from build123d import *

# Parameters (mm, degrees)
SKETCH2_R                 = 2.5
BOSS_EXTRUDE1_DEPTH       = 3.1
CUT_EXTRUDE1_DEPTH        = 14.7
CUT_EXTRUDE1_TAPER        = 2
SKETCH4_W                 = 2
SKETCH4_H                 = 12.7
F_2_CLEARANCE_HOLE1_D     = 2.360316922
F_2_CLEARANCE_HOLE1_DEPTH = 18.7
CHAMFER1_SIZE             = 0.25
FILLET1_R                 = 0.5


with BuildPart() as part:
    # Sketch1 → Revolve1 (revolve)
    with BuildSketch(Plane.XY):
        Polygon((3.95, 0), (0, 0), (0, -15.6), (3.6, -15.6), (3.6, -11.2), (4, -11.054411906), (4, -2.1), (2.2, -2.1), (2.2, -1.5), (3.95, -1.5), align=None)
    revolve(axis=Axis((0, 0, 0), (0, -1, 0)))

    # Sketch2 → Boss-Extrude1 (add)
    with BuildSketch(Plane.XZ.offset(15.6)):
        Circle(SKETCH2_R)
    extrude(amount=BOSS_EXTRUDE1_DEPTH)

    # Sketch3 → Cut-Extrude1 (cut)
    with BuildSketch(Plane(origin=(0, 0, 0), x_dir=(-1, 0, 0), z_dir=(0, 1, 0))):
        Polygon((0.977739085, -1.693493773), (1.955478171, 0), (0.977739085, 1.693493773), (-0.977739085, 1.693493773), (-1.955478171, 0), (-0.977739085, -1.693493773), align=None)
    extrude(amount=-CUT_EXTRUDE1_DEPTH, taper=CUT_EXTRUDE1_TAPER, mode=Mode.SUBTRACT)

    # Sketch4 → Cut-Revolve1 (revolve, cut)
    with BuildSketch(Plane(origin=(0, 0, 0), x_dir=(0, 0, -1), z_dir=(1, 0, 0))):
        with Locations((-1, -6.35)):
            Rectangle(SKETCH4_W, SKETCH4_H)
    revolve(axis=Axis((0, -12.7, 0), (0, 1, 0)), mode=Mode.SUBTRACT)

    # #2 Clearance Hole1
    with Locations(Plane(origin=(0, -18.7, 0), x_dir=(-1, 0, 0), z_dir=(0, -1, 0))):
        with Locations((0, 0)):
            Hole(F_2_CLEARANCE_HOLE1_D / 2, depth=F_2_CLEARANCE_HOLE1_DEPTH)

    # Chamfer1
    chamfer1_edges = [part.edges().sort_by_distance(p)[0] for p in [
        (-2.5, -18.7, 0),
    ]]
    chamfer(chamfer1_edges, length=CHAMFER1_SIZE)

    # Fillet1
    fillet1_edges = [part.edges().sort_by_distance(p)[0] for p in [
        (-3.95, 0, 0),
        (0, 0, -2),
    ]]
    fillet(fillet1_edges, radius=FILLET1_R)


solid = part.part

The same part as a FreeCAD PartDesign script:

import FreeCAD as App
import Part
import Sketcher

V = App.Vector
Q = App.Units.Quantity


def edges_at(feature, points):
    """Names of the edges that pass closest to the given points."""
    edges = feature.Shape.Edges
    near = lambda p: min(range(len(edges)), key=lambda i: edges[i].distToShape(Part.Vertex(*p))[0])
    return sorted({f"Edge{near(p) + 1}" for p in points})

doc = App.newDocument("Part")
body = doc.addObject("PartDesign::Body", "Body")

# Sketch on XY plane
sketch1 = body.newObject("Sketcher::SketchObject", "Sketch")
sketch1.AttachmentSupport = (doc.getObject("XY_Plane"), [""])
sketch1.MapMode = "FlatFace"
sketch1.addGeometry([
    Part.LineSegment(V(3.95, 0, 0), V(0, 0, 0)),  # 0
    Part.LineSegment(V(0, 0, 0), V(0, -15.6, 0)),  # 1
    Part.LineSegment(V(0, -15.6, 0), V(3.6, -15.6, 0)),  # 2
    Part.LineSegment(V(3.6, -15.6, 0), V(3.6, -11.2, 0)),  # 3
    Part.LineSegment(V(3.6, -11.2, 0), V(4, -11.05, 0)),  # 4
    Part.LineSegment(V(4, -11.05, 0), V(4, -2.1, 0)),  # 5
    Part.LineSegment(V(4, -2.1, 0), V(2.2, -2.1, 0)),  # 6
    Part.LineSegment(V(2.2, -2.1, 0), V(2.2, -1.5, 0)),  # 7
    Part.LineSegment(V(2.2, -1.5, 0), V(3.95, -1.5, 0)),  # 8
    Part.LineSegment(V(3.95, -1.5, 0), V(3.95, 0, 0)),  # 9
], False)
sketch1.addConstraint([
    Sketcher.Constraint("Coincident", 0, 2, 1, 1),
    Sketcher.Constraint("Coincident", 1, 2, 2, 1),
    Sketcher.Constraint("Coincident", 2, 2, 3, 1),
    Sketcher.Constraint("Coincident", 3, 2, 4, 1),
    Sketcher.Constraint("Coincident", 4, 2, 5, 1),
    Sketcher.Constraint("Coincident", 5, 2, 6, 1),
    Sketcher.Constraint("Coincident", 6, 2, 7, 1),
    Sketcher.Constraint("Coincident", 7, 2, 8, 1),
    Sketcher.Constraint("Coincident", 8, 2, 9, 1),
    Sketcher.Constraint("Coincident", 9, 2, 0, 1),
    Sketcher.Constraint("Horizontal", 0),
    Sketcher.Constraint("Vertical", 1),
    Sketcher.Constraint("Horizontal", 2),
    Sketcher.Constraint("Vertical", 3),
    Sketcher.Constraint("Vertical", 5),
    Sketcher.Constraint("Horizontal", 6),
    Sketcher.Constraint("Vertical", 7),
    Sketcher.Constraint("Horizontal", 8),
    Sketcher.Constraint("Vertical", 9),
    Sketcher.Constraint("Coincident", 0, 2, -1, 1),
    Sketcher.Constraint("Angle", 4, Q("20 deg")),
    Sketcher.Constraint("DistanceX", 2, 1, 2, 2, 3.6),
    Sketcher.Constraint("DistanceX", 6, 2, 6, 1, 1.8),
    Sketcher.Constraint("DistanceY", 1, 2, 1, 1, 15.6),
    Sketcher.Constraint("DistanceY", 3, 1, 3, 2, 4.4),
    Sketcher.Constraint("DistanceY", 7, 1, 7, 2, 0.6),
    Sketcher.Constraint("DistanceY", 9, 1, 9, 2, 1.5),
    Sketcher.Constraint("DistanceX", -1, 1, 4, 2, 4.0),
    Sketcher.Constraint("DistanceX", 0, 2, 0, 1, 3.95),
])
revolution = body.newObject("PartDesign::Revolution", "Revolution")
revolution.Profile = sketch1
revolution.ReferenceAxis = (sketch1, ["V_Axis"])
revolution.Angle = 360

# Sketch on XZ plane
sketch2 = body.newObject("Sketcher::SketchObject", "Sketch001")
sketch2.AttachmentSupport = (doc.getObject("XZ_Plane"), [""])
sketch2.MapMode = "FlatFace"
sketch2.AttachmentOffset = App.Placement(V(0, 0, 15.6), App.Rotation())
sketch2.addGeometry(Part.Circle(V(0, 0, 0), V(0, 0, 1), 2.5), False)
sketch2.addConstraint([
    Sketcher.Constraint("Coincident", 0, 3, -1, 1),
    Sketcher.Constraint("Diameter", 0, 5.0),
])
pad1 = body.newObject("PartDesign::Pad", "Pad")
pad1.Profile = sketch2
pad1.Length = 3.1

# Sketch on XZ plane
sketch3 = body.newObject("Sketcher::SketchObject", "Sketch002")
sketch3.AttachmentSupport = (doc.getObject("XZ_Plane"), [""])
sketch3.MapMode = "FlatFace"
sketch3.addGeometry([
    Part.LineSegment(V(-1, -1.7, 0), V(-2, 0, 0)),  # 0
    Part.LineSegment(V(-2, 0, 0), V(-1, 1.7, 0)),  # 1
    Part.LineSegment(V(-1, 1.7, 0), V(1, 1.7, 0)),  # 2
    Part.LineSegment(V(1, 1.7, 0), V(2, 0, 0)),  # 3
    Part.LineSegment(V(2, 0, 0), V(1, -1.7, 0)),  # 4
    Part.LineSegment(V(1, -1.7, 0), V(-1, -1.7, 0)),  # 5
], False)
sketch3.addConstraint([
    Sketcher.Constraint("Coincident", 0, 2, 1, 1),
    Sketcher.Constraint("Coincident", 1, 2, 2, 1),
    Sketcher.Constraint("Coincident", 2, 2, 3, 1),
    Sketcher.Constraint("Coincident", 3, 2, 4, 1),
    Sketcher.Constraint("Coincident", 4, 2, 5, 1),
    Sketcher.Constraint("Coincident", 5, 2, 0, 1),
    Sketcher.Constraint("Horizontal", 2),
    Sketcher.Constraint("Horizontal", 5),
    Sketcher.Constraint("Symmetric", 0, 2, 3, 2, -1, 1),
    Sketcher.Constraint("Symmetric", 1, 2, 4, 2, -1, 1),
    Sketcher.Constraint("PointOnObject", 0, 2, -1),
    Sketcher.Constraint("Parallel", 0, 3),
    Sketcher.Constraint("Vertical", 2, 2, 4, 2),
    Sketcher.Constraint("Angle", 0, Q("120 deg")),
    Sketcher.Constraint("DistanceX", 2, 1, 2, 2, 1.955478),
    Sketcher.Constraint("Distance", 0, 1.955478),
])
pocket1 = body.newObject("PartDesign::Pocket", "Pocket")
pocket1.Profile = sketch3
pocket1.Length = 14.7
pocket1.Reversed = True
pocket1.TaperAngle = -2

# Sketch on YZ plane
sketch4 = body.newObject("Sketcher::SketchObject", "Sketch003")
sketch4.AttachmentSupport = (doc.getObject("YZ_Plane"), [""])
sketch4.MapMode = "FlatFace"
sketch4.addGeometry([
    Part.LineSegment(V(0, 2, 0), V(-12.7, 2, 0)),
    Part.LineSegment(V(-12.7, 2, 0), V(-12.7, 0, 0)),
    Part.LineSegment(V(-12.7, 0, 0), V(0, 0, 0)),
    Part.LineSegment(V(0, 0, 0), V(0, 2, 0)),
], False)
sketch4.addConstraint([
    Sketcher.Constraint("Coincident", 0, 2, 1, 1),
    Sketcher.Constraint("Coincident", 1, 2, 2, 1),
    Sketcher.Constraint("Coincident", 2, 2, 3, 1),
    Sketcher.Constraint("Coincident", 3, 2, 0, 1),
    Sketcher.Constraint("Horizontal", 0),
    Sketcher.Constraint("Vertical", 1),
    Sketcher.Constraint("Horizontal", 2),
    Sketcher.Constraint("Vertical", 3),
    Sketcher.Constraint("Coincident", 2, 2, -1, 1),
    Sketcher.Constraint("DistanceY", 1, 2, 1, 1, 2.0),
    Sketcher.Constraint("DistanceX", 0, 2, 0, 1, 12.7),
])
groove = body.newObject("PartDesign::Groove", "Groove")
groove.Profile = sketch4
groove.ReferenceAxis = (sketch4, ["H_Axis"])
groove.Angle = 360

# Sketch on XZ plane
sketch5 = body.newObject("Sketcher::SketchObject", "Sketch004")
sketch5.AttachmentSupport = (doc.getObject("XZ_Plane"), [""])
sketch5.MapMode = "FlatFace"
sketch5.AttachmentOffset = App.Placement(V(0, 0, 18.7), App.Rotation())
sketch5.addGeometry(Part.Circle(V(0, 0, 0), V(0, 0, 1), 1.2), False)
sketch5.addConstraint([
    Sketcher.Constraint("Coincident", 0, 3, -1, 1),
    Sketcher.Constraint("Diameter", 0, 2.360317),
])
doc.recompute()
hole = body.newObject("PartDesign::Hole", "Hole")
hole.Profile = sketch5
hole.ThreadType = "None"
hole.Diameter = 2.360317
hole.DepthType = "Dimension"
hole.Depth = 18.7
hole.DrillPoint = "Flat"
doc.recompute()

chamfer = body.newObject("PartDesign::Chamfer", "Chamfer")
chamfer.Base = (hole, edges_at(hole, [(-2.5, -18.7, 0)]))
chamfer.Size = 0.25
doc.recompute()

fillet = body.newObject("PartDesign::Fillet", "Fillet")
fillet.Base = (chamfer, edges_at(chamfer, [(-3.95, 0, 0), (0, 0, -2)]))
fillet.Radius = 0.5

doc.recompute()
